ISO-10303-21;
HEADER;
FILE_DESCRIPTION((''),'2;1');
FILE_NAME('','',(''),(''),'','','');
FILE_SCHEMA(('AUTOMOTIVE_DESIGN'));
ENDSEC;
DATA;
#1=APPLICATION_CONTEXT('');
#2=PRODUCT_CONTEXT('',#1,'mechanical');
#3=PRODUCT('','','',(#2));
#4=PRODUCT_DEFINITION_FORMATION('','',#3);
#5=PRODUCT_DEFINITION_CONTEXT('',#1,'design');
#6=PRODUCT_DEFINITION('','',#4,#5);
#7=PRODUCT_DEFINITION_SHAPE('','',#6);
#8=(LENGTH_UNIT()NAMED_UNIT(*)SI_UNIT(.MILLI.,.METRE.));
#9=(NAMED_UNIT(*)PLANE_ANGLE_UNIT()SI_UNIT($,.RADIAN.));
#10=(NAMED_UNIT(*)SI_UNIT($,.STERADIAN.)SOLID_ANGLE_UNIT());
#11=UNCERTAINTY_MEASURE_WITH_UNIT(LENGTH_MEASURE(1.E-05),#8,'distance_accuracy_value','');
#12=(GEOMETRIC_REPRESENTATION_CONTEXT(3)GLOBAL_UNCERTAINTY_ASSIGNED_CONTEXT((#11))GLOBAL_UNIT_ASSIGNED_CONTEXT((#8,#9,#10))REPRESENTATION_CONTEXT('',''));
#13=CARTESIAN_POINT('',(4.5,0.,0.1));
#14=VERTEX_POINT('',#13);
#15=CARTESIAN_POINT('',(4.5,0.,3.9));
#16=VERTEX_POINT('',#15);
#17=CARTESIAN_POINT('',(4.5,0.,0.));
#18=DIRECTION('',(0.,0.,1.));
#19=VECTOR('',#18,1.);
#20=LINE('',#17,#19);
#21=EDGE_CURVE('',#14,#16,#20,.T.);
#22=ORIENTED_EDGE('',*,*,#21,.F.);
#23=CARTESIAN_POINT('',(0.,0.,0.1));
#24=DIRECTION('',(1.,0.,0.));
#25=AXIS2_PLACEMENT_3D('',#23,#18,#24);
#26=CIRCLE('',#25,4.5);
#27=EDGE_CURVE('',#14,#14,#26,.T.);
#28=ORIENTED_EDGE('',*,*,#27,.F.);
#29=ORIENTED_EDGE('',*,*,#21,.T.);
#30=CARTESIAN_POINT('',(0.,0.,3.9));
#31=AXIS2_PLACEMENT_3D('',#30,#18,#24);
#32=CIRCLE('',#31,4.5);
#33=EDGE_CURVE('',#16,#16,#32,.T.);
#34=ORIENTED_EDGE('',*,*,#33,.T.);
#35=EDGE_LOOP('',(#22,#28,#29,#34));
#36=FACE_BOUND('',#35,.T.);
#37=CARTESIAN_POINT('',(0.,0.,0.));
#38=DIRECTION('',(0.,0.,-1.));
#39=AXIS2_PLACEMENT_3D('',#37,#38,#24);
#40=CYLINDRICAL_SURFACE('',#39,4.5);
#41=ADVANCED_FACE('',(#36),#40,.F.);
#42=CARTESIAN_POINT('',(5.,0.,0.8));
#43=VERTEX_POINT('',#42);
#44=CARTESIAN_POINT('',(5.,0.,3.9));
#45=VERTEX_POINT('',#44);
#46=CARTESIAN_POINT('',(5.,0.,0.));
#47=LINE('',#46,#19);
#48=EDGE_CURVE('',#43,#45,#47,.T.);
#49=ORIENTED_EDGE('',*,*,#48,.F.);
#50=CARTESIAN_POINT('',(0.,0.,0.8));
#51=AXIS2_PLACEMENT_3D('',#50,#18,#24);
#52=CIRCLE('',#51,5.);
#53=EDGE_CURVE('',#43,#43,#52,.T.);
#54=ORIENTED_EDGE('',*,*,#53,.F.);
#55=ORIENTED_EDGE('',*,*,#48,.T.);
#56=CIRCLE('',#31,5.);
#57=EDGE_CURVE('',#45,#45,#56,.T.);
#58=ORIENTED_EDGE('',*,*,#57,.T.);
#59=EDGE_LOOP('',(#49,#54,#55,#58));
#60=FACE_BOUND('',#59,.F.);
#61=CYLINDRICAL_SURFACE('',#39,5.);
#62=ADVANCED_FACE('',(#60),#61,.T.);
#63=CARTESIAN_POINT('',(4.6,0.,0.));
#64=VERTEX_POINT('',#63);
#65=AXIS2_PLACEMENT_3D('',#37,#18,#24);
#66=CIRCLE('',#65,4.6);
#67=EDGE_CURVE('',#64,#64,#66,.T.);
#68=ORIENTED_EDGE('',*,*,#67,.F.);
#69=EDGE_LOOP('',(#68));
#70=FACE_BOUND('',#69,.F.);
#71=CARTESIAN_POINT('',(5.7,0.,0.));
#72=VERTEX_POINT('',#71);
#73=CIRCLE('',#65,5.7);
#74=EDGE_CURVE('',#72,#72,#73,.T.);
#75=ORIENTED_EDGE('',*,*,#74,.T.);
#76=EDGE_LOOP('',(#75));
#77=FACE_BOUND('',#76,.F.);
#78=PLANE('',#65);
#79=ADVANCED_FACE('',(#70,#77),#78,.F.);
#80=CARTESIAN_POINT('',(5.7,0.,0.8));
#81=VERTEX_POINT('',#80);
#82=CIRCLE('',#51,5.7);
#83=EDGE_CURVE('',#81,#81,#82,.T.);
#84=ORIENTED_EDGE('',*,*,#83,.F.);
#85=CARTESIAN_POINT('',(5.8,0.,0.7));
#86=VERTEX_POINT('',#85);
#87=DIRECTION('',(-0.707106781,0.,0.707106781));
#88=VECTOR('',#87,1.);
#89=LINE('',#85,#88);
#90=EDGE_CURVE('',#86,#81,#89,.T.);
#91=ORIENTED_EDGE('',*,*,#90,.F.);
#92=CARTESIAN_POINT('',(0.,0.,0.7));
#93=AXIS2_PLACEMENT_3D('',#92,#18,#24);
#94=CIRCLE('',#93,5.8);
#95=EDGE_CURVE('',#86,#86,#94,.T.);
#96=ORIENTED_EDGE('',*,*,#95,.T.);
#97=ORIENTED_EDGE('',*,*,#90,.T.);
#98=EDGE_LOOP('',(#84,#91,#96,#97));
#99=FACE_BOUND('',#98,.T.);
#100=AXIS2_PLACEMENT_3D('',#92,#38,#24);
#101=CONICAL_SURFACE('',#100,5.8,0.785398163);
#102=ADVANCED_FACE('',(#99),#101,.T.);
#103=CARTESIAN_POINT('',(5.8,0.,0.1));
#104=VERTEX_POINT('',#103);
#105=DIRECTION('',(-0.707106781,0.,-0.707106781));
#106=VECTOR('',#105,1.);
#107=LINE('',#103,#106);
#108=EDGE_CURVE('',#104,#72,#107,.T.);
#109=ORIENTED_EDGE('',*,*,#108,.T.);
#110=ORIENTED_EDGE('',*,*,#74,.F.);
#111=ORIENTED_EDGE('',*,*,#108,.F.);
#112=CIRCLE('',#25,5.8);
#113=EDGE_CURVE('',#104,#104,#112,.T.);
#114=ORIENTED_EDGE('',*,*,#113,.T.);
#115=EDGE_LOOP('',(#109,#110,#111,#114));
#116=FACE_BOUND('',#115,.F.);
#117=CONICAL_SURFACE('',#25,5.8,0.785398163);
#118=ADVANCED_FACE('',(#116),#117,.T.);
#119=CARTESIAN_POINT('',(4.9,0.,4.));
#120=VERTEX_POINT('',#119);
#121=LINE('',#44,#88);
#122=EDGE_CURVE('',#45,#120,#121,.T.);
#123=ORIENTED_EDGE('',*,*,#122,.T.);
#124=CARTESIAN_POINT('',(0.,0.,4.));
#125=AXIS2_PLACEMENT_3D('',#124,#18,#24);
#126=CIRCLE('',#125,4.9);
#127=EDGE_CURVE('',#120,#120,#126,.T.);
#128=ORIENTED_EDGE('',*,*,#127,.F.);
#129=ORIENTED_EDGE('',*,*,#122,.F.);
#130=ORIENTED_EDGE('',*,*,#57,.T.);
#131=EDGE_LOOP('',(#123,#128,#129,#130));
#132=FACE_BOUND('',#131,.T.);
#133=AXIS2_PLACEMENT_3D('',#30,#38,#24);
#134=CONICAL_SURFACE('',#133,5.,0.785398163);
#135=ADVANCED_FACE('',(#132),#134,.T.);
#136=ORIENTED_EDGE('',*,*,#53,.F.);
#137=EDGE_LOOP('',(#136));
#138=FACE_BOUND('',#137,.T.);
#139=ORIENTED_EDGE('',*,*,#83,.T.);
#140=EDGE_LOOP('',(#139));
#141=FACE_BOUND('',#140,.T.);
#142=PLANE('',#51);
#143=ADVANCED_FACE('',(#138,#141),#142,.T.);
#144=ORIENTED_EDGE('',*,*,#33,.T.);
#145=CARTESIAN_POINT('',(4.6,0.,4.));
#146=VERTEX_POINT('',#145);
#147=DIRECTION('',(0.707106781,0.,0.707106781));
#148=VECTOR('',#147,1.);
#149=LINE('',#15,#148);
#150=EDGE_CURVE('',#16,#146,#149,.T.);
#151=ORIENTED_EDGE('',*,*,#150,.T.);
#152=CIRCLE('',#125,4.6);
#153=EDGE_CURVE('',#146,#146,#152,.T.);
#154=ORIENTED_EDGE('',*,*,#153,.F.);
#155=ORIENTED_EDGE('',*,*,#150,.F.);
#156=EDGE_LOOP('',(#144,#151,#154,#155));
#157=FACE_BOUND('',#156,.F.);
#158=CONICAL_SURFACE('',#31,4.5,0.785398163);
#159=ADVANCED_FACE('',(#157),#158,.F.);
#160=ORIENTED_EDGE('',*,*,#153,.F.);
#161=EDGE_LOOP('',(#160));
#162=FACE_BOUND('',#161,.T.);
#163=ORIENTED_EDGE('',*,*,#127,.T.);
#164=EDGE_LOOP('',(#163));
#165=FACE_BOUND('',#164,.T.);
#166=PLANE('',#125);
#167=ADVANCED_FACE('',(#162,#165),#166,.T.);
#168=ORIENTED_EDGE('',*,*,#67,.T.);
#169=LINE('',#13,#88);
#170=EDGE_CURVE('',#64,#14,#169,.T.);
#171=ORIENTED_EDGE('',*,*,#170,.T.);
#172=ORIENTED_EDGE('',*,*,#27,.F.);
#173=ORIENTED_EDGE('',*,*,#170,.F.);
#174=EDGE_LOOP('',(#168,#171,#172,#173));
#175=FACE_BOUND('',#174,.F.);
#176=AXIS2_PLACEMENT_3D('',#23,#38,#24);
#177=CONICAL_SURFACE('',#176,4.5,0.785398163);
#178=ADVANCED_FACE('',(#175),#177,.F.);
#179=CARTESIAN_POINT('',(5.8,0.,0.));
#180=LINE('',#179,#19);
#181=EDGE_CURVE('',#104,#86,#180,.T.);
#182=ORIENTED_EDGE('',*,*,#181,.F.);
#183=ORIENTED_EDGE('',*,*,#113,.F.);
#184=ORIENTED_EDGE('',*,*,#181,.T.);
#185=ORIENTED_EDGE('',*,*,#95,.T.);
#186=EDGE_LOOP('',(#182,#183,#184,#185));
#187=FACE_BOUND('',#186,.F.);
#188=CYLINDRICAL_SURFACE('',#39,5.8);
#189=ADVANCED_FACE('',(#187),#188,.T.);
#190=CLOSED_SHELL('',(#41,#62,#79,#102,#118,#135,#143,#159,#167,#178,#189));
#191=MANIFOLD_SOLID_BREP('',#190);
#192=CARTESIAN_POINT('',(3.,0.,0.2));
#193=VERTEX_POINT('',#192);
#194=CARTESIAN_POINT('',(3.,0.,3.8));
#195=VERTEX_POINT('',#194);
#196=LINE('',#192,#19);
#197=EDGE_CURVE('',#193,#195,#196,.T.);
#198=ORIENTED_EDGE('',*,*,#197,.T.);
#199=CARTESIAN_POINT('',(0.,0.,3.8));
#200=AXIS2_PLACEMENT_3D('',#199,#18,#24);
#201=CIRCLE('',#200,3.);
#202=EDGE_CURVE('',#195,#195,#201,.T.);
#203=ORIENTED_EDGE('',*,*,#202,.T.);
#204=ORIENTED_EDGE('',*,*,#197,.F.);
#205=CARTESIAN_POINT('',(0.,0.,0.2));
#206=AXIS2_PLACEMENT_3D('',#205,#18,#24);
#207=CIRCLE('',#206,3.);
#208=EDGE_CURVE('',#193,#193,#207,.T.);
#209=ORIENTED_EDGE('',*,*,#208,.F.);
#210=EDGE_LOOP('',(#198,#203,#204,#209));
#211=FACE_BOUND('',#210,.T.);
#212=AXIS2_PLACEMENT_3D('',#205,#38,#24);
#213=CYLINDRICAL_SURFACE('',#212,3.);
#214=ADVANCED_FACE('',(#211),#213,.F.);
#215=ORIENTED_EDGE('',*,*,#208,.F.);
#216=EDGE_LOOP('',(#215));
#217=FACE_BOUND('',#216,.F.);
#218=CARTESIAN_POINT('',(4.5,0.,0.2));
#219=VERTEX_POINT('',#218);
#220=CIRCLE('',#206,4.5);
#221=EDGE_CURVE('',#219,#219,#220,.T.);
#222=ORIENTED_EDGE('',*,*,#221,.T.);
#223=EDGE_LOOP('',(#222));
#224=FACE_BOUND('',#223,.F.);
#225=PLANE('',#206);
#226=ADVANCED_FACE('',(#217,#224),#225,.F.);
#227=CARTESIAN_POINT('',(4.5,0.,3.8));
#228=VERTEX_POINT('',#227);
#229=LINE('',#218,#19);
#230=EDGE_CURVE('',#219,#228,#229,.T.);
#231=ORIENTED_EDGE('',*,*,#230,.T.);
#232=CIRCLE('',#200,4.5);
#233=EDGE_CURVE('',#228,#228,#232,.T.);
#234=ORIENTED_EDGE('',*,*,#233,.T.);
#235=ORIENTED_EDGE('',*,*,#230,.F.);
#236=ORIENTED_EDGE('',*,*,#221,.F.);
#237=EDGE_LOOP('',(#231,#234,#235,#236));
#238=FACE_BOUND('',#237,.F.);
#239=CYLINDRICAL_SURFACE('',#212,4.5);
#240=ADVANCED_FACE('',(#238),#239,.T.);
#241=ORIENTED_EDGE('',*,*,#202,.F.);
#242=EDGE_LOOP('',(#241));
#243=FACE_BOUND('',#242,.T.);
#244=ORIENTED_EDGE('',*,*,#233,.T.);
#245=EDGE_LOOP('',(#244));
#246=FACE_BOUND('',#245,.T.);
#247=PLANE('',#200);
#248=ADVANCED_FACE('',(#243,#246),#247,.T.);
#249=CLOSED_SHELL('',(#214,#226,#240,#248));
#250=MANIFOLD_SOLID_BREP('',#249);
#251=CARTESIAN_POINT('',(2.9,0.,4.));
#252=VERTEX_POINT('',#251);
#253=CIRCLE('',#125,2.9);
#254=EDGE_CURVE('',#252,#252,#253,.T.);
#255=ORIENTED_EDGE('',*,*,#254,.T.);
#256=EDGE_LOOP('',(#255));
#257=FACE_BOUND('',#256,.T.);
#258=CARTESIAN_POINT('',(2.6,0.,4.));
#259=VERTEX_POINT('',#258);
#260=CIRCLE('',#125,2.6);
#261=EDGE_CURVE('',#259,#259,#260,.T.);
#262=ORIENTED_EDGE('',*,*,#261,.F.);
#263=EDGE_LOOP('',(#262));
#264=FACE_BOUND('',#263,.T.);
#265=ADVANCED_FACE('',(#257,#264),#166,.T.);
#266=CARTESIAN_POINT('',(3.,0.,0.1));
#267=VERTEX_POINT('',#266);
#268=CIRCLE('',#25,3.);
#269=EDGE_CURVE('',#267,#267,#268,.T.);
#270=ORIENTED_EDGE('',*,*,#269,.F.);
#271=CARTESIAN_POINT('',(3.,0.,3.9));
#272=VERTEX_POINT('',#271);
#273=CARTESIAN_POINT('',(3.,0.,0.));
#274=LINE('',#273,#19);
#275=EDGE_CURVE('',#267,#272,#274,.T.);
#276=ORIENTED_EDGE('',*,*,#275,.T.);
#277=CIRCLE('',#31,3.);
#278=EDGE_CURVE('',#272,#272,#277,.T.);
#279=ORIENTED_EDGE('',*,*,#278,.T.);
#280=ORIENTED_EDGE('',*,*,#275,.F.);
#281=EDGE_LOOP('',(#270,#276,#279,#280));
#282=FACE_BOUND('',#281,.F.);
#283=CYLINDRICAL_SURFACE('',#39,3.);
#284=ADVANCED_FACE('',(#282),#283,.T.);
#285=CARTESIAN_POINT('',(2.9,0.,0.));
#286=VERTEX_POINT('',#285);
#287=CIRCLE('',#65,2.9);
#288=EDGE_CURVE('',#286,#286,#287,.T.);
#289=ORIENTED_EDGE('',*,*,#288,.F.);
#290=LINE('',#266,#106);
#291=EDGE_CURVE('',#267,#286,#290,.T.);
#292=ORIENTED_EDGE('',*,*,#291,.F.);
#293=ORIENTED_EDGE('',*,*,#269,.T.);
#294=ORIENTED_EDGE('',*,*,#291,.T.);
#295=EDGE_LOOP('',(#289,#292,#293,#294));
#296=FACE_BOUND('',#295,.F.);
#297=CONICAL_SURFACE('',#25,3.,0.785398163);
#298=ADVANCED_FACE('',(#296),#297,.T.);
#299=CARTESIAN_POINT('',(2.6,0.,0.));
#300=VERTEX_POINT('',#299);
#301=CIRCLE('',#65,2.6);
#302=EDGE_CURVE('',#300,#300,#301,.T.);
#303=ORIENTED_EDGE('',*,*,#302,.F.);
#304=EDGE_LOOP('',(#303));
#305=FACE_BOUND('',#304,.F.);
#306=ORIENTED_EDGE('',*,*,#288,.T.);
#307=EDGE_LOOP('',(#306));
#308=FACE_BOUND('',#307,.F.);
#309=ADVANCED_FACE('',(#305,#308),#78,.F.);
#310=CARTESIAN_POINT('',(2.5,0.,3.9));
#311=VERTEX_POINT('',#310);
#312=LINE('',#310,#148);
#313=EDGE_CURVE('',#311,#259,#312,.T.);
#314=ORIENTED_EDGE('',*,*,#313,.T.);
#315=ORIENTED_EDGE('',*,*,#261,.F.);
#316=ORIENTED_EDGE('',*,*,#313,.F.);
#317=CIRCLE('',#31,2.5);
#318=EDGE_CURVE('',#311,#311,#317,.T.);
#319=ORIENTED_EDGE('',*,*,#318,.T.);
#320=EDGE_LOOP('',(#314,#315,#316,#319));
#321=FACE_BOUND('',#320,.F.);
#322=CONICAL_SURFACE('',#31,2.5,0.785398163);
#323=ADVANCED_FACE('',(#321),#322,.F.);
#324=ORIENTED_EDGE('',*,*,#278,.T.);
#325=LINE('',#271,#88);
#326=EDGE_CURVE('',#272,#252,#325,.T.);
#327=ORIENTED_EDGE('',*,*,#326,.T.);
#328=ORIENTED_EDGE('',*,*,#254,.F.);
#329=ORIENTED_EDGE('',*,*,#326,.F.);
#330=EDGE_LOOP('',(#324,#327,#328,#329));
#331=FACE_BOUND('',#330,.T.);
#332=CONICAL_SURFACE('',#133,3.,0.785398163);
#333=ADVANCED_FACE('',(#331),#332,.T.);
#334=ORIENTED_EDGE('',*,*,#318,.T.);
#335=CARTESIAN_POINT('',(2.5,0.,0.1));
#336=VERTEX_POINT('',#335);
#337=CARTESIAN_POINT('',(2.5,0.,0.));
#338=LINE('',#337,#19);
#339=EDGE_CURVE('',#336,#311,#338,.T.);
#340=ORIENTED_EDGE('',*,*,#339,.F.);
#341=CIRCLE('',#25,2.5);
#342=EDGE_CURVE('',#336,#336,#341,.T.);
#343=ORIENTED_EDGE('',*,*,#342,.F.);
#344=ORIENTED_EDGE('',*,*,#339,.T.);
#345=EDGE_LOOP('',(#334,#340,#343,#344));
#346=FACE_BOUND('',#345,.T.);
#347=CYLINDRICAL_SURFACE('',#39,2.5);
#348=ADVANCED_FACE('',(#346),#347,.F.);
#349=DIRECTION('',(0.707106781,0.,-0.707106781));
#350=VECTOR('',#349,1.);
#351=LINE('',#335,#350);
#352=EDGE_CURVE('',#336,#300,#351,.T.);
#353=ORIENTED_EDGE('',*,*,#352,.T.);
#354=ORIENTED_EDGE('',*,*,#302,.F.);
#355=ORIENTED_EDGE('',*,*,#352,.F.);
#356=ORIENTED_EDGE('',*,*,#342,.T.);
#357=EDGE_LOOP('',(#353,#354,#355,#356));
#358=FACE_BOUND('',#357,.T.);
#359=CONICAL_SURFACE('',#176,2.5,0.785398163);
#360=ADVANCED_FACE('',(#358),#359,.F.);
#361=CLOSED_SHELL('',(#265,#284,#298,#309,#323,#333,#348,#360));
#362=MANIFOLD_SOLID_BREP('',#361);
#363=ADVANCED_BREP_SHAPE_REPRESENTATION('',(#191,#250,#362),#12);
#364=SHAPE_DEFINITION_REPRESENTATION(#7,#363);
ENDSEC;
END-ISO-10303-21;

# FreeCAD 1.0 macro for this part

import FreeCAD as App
import Part
import Sketcher
from FreeCAD import Vector
Q = App.Units.Quantity


def edges_at(feature, points):
    """Names of the edges that pass closest to the given points."""
    edges = feature.Shape.Edges
    near = lambda p: min(range(len(edges)), key=lambda i: edges[i].distToShape(Part.Vertex(*p))[0])
    return sorted({f"Edge{near(p) + 1}" for p in points})

doc = App.newDocument("Part")
params = doc.addObject("Spreadsheet::Sheet", "Params")
for row, (alias, value) in enumerate([
    ("sketch1_diameter", "6 mm"),
    ("sketch1_diameter2", "5 mm"),
    ("pad1_length", "4 mm"),
    ("chamfer_size", "0.1 mm"),
    ("sketch2_diameter", "10 mm"),
    ("sketch2_diameter2", "9 mm"),
    ("pad2_length", "4 mm"),
    ("sketch3_diameter", "10 mm"),
    ("sketch3_diameter2", "11.6 mm"),
    ("pad3_length", "0.8 mm"),
    ("chamfer2_size", "0.1 mm"),
    ("sketch4_diameter", "9 mm"),
    ("sketch4_diameter2", "6 mm"),
    ("pad4_length", "3.6 mm"),
], start=1):
    params.set(f"A{row}", alias)
    params.set(f"B{row}", "=" + value)
    params.setAlias(f"B{row}", alias)

body = doc.addObject("PartDesign::Body", "Body")

# Sketch on XY plane
sketch1 = doc.addObject("Sketcher::SketchObject", "Sketch")
body.addObject(sketch1)
sketch1.AttachmentSupport = (doc.XY_Plane, [""])
sketch1.MapMode = "FlatFace"
sketch1.addGeometry(Part.Circle(Vector(0, 0, 0), Vector(0, 0, 1), 3), False)
sketch1.addGeometry(Part.Circle(Vector(0, 0, 0), Vector(0, 0, 1), 2.5), False)
sketch1.addConstraint(Sketcher.Constraint("Coincident", 0, 3, -1, 1))
sketch1.addConstraint(Sketcher.Constraint("Coincident", 1, 3, -1, 1))
sketch1.addConstraint(Sketcher.Constraint("Diameter", 0, Q("6 mm")))
sketch1.addConstraint(Sketcher.Constraint("Diameter", 1, Q("5 mm")))
sketch1.setExpression("Constraints[2]", "Params.sketch1_diameter")
sketch1.setExpression("Constraints[3]", "Params.sketch1_diameter2")
pad1 = doc.addObject("PartDesign::Pad", "Pad")
body.addObject(pad1)
pad1.Profile = sketch1
pad1.setExpression("Length", "Params.pad1_length")
doc.recompute()

chamfer = doc.addObject("PartDesign::Chamfer", "Chamfer")
body.addObject(chamfer)
chamfer.Base = (pad1, edges_at(pad1, [
    (-3, 0, 0),
    (-2.5, 0, 0),
    (-3, 0, 4),
    (-2.5, 0, 4),
]))
chamfer.setExpression("Size", "Params.chamfer_size")
body2 = doc.addObject("PartDesign::Body", "Body001")

# Sketch on XY plane
sketch2 = doc.addObject("Sketcher::SketchObject", "Sketch001")
body2.addObject(sketch2)
sketch2.AttachmentSupport = (doc.getObject("XY_Plane001"), [""])
sketch2.MapMode = "FlatFace"
sketch2.addGeometry(Part.Circle(Vector(0, 0, 0), Vector(0, 0, 1), 5), False)
sketch2.addGeometry(Part.Circle(Vector(0, 0, 0), Vector(0, 0, 1), 4.5), False)
sketch2.addConstraint(Sketcher.Constraint("Coincident", 0, 3, -1, 1))
sketch2.addConstraint(Sketcher.Constraint("Coincident", 1, 3, -1, 1))
sketch2.addConstraint(Sketcher.Constraint("Diameter", 0, Q("10 mm")))
sketch2.addConstraint(Sketcher.Constraint("Diameter", 1, Q("9 mm")))
sketch2.setExpression("Constraints[2]", "Params.sketch2_diameter")
sketch2.setExpression("Constraints[3]", "Params.sketch2_diameter2")
pad2 = doc.addObject("PartDesign::Pad", "Pad001")
body2.addObject(pad2)
pad2.Profile = sketch2
pad2.setExpression("Length", "Params.pad2_length")

# Sketch on XY plane
sketch3 = doc.addObject("Sketcher::SketchObject", "Sketch002")
body2.addObject(sketch3)
sketch3.AttachmentSupport = (doc.getObject("XY_Plane001"), [""])
sketch3.MapMode = "FlatFace"
sketch3.addGeometry(Part.Circle(Vector(0, 0, 0), Vector(0, 0, 1), 6), False)
sketch3.addGeometry(Part.Circle(Vector(0, 0, 0), Vector(0, 0, 1), 5), False)
sketch3.addConstraint(Sketcher.Constraint("Coincident", 0, 3, -1, 1))
sketch3.addConstraint(Sketcher.Constraint("Coincident", 1, 3, -1, 1))
sketch3.addConstraint(Sketcher.Constraint("Diameter", 1, Q("10 mm")))
sketch3.addConstraint(Sketcher.Constraint("Diameter", 0, Q("11.6 mm")))
sketch3.setExpression("Constraints[2]", "Params.sketch3_diameter")
sketch3.setExpression("Constraints[3]", "Params.sketch3_diameter2")
pad3 = doc.addObject("PartDesign::Pad", "Pad002")
body2.addObject(pad3)
pad3.Profile = sketch3
pad3.setExpression("Length", "Params.pad3_length")
doc.recompute()

chamfer2 = doc.addObject("PartDesign::Chamfer", "Chamfer001")
body2.addObject(chamfer2)
chamfer2.Base = (pad3, edges_at(pad3, [
    (-5.8, 0, 0),
    (-4.5, 0, 0),
    (-5, 0, 4),
    (-4.5, 0, 4),
    (-5.8, 0, 0.8),
]))
chamfer2.setExpression("Size", "Params.chamfer2_size")
body3 = doc.addObject("PartDesign::Body", "Body002")

# Sketch on XY plane
sketch4 = doc.addObject("Sketcher::SketchObject", "Sketch003")
body3.addObject(sketch4)
sketch4.AttachmentSupport = (doc.getObject("XY_Plane002"), [""])
sketch4.MapMode = "FlatFace"
sketch4.AttachmentOffset = App.Placement(Vector(0, 0, 0.2), App.Rotation())
sketch4.addGeometry(Part.Circle(Vector(0, 0, 0), Vector(0, 0, 1), 4.5), False)
sketch4.addGeometry(Part.Circle(Vector(0, 0, 0), Vector(0, 0, 1), 3), False)
sketch4.addConstraint(Sketcher.Constraint("Coincident", 0, 3, -1, 1))
sketch4.addConstraint(Sketcher.Constraint("Coincident", 1, 3, -1, 1))
sketch4.addConstraint(Sketcher.Constraint("Diameter", 0, Q("9 mm")))
sketch4.addConstraint(Sketcher.Constraint("Diameter", 1, Q("6 mm")))
sketch4.setExpression("Constraints[2]", "Params.sketch4_diameter")
sketch4.setExpression("Constraints[3]", "Params.sketch4_diameter2")
pad4 = doc.addObject("PartDesign::Pad", "Pad003")
body3.addObject(pad4)
pad4.Profile = sketch4
pad4.setExpression("Length", "Params.pad4_length")

doc.recompute()
